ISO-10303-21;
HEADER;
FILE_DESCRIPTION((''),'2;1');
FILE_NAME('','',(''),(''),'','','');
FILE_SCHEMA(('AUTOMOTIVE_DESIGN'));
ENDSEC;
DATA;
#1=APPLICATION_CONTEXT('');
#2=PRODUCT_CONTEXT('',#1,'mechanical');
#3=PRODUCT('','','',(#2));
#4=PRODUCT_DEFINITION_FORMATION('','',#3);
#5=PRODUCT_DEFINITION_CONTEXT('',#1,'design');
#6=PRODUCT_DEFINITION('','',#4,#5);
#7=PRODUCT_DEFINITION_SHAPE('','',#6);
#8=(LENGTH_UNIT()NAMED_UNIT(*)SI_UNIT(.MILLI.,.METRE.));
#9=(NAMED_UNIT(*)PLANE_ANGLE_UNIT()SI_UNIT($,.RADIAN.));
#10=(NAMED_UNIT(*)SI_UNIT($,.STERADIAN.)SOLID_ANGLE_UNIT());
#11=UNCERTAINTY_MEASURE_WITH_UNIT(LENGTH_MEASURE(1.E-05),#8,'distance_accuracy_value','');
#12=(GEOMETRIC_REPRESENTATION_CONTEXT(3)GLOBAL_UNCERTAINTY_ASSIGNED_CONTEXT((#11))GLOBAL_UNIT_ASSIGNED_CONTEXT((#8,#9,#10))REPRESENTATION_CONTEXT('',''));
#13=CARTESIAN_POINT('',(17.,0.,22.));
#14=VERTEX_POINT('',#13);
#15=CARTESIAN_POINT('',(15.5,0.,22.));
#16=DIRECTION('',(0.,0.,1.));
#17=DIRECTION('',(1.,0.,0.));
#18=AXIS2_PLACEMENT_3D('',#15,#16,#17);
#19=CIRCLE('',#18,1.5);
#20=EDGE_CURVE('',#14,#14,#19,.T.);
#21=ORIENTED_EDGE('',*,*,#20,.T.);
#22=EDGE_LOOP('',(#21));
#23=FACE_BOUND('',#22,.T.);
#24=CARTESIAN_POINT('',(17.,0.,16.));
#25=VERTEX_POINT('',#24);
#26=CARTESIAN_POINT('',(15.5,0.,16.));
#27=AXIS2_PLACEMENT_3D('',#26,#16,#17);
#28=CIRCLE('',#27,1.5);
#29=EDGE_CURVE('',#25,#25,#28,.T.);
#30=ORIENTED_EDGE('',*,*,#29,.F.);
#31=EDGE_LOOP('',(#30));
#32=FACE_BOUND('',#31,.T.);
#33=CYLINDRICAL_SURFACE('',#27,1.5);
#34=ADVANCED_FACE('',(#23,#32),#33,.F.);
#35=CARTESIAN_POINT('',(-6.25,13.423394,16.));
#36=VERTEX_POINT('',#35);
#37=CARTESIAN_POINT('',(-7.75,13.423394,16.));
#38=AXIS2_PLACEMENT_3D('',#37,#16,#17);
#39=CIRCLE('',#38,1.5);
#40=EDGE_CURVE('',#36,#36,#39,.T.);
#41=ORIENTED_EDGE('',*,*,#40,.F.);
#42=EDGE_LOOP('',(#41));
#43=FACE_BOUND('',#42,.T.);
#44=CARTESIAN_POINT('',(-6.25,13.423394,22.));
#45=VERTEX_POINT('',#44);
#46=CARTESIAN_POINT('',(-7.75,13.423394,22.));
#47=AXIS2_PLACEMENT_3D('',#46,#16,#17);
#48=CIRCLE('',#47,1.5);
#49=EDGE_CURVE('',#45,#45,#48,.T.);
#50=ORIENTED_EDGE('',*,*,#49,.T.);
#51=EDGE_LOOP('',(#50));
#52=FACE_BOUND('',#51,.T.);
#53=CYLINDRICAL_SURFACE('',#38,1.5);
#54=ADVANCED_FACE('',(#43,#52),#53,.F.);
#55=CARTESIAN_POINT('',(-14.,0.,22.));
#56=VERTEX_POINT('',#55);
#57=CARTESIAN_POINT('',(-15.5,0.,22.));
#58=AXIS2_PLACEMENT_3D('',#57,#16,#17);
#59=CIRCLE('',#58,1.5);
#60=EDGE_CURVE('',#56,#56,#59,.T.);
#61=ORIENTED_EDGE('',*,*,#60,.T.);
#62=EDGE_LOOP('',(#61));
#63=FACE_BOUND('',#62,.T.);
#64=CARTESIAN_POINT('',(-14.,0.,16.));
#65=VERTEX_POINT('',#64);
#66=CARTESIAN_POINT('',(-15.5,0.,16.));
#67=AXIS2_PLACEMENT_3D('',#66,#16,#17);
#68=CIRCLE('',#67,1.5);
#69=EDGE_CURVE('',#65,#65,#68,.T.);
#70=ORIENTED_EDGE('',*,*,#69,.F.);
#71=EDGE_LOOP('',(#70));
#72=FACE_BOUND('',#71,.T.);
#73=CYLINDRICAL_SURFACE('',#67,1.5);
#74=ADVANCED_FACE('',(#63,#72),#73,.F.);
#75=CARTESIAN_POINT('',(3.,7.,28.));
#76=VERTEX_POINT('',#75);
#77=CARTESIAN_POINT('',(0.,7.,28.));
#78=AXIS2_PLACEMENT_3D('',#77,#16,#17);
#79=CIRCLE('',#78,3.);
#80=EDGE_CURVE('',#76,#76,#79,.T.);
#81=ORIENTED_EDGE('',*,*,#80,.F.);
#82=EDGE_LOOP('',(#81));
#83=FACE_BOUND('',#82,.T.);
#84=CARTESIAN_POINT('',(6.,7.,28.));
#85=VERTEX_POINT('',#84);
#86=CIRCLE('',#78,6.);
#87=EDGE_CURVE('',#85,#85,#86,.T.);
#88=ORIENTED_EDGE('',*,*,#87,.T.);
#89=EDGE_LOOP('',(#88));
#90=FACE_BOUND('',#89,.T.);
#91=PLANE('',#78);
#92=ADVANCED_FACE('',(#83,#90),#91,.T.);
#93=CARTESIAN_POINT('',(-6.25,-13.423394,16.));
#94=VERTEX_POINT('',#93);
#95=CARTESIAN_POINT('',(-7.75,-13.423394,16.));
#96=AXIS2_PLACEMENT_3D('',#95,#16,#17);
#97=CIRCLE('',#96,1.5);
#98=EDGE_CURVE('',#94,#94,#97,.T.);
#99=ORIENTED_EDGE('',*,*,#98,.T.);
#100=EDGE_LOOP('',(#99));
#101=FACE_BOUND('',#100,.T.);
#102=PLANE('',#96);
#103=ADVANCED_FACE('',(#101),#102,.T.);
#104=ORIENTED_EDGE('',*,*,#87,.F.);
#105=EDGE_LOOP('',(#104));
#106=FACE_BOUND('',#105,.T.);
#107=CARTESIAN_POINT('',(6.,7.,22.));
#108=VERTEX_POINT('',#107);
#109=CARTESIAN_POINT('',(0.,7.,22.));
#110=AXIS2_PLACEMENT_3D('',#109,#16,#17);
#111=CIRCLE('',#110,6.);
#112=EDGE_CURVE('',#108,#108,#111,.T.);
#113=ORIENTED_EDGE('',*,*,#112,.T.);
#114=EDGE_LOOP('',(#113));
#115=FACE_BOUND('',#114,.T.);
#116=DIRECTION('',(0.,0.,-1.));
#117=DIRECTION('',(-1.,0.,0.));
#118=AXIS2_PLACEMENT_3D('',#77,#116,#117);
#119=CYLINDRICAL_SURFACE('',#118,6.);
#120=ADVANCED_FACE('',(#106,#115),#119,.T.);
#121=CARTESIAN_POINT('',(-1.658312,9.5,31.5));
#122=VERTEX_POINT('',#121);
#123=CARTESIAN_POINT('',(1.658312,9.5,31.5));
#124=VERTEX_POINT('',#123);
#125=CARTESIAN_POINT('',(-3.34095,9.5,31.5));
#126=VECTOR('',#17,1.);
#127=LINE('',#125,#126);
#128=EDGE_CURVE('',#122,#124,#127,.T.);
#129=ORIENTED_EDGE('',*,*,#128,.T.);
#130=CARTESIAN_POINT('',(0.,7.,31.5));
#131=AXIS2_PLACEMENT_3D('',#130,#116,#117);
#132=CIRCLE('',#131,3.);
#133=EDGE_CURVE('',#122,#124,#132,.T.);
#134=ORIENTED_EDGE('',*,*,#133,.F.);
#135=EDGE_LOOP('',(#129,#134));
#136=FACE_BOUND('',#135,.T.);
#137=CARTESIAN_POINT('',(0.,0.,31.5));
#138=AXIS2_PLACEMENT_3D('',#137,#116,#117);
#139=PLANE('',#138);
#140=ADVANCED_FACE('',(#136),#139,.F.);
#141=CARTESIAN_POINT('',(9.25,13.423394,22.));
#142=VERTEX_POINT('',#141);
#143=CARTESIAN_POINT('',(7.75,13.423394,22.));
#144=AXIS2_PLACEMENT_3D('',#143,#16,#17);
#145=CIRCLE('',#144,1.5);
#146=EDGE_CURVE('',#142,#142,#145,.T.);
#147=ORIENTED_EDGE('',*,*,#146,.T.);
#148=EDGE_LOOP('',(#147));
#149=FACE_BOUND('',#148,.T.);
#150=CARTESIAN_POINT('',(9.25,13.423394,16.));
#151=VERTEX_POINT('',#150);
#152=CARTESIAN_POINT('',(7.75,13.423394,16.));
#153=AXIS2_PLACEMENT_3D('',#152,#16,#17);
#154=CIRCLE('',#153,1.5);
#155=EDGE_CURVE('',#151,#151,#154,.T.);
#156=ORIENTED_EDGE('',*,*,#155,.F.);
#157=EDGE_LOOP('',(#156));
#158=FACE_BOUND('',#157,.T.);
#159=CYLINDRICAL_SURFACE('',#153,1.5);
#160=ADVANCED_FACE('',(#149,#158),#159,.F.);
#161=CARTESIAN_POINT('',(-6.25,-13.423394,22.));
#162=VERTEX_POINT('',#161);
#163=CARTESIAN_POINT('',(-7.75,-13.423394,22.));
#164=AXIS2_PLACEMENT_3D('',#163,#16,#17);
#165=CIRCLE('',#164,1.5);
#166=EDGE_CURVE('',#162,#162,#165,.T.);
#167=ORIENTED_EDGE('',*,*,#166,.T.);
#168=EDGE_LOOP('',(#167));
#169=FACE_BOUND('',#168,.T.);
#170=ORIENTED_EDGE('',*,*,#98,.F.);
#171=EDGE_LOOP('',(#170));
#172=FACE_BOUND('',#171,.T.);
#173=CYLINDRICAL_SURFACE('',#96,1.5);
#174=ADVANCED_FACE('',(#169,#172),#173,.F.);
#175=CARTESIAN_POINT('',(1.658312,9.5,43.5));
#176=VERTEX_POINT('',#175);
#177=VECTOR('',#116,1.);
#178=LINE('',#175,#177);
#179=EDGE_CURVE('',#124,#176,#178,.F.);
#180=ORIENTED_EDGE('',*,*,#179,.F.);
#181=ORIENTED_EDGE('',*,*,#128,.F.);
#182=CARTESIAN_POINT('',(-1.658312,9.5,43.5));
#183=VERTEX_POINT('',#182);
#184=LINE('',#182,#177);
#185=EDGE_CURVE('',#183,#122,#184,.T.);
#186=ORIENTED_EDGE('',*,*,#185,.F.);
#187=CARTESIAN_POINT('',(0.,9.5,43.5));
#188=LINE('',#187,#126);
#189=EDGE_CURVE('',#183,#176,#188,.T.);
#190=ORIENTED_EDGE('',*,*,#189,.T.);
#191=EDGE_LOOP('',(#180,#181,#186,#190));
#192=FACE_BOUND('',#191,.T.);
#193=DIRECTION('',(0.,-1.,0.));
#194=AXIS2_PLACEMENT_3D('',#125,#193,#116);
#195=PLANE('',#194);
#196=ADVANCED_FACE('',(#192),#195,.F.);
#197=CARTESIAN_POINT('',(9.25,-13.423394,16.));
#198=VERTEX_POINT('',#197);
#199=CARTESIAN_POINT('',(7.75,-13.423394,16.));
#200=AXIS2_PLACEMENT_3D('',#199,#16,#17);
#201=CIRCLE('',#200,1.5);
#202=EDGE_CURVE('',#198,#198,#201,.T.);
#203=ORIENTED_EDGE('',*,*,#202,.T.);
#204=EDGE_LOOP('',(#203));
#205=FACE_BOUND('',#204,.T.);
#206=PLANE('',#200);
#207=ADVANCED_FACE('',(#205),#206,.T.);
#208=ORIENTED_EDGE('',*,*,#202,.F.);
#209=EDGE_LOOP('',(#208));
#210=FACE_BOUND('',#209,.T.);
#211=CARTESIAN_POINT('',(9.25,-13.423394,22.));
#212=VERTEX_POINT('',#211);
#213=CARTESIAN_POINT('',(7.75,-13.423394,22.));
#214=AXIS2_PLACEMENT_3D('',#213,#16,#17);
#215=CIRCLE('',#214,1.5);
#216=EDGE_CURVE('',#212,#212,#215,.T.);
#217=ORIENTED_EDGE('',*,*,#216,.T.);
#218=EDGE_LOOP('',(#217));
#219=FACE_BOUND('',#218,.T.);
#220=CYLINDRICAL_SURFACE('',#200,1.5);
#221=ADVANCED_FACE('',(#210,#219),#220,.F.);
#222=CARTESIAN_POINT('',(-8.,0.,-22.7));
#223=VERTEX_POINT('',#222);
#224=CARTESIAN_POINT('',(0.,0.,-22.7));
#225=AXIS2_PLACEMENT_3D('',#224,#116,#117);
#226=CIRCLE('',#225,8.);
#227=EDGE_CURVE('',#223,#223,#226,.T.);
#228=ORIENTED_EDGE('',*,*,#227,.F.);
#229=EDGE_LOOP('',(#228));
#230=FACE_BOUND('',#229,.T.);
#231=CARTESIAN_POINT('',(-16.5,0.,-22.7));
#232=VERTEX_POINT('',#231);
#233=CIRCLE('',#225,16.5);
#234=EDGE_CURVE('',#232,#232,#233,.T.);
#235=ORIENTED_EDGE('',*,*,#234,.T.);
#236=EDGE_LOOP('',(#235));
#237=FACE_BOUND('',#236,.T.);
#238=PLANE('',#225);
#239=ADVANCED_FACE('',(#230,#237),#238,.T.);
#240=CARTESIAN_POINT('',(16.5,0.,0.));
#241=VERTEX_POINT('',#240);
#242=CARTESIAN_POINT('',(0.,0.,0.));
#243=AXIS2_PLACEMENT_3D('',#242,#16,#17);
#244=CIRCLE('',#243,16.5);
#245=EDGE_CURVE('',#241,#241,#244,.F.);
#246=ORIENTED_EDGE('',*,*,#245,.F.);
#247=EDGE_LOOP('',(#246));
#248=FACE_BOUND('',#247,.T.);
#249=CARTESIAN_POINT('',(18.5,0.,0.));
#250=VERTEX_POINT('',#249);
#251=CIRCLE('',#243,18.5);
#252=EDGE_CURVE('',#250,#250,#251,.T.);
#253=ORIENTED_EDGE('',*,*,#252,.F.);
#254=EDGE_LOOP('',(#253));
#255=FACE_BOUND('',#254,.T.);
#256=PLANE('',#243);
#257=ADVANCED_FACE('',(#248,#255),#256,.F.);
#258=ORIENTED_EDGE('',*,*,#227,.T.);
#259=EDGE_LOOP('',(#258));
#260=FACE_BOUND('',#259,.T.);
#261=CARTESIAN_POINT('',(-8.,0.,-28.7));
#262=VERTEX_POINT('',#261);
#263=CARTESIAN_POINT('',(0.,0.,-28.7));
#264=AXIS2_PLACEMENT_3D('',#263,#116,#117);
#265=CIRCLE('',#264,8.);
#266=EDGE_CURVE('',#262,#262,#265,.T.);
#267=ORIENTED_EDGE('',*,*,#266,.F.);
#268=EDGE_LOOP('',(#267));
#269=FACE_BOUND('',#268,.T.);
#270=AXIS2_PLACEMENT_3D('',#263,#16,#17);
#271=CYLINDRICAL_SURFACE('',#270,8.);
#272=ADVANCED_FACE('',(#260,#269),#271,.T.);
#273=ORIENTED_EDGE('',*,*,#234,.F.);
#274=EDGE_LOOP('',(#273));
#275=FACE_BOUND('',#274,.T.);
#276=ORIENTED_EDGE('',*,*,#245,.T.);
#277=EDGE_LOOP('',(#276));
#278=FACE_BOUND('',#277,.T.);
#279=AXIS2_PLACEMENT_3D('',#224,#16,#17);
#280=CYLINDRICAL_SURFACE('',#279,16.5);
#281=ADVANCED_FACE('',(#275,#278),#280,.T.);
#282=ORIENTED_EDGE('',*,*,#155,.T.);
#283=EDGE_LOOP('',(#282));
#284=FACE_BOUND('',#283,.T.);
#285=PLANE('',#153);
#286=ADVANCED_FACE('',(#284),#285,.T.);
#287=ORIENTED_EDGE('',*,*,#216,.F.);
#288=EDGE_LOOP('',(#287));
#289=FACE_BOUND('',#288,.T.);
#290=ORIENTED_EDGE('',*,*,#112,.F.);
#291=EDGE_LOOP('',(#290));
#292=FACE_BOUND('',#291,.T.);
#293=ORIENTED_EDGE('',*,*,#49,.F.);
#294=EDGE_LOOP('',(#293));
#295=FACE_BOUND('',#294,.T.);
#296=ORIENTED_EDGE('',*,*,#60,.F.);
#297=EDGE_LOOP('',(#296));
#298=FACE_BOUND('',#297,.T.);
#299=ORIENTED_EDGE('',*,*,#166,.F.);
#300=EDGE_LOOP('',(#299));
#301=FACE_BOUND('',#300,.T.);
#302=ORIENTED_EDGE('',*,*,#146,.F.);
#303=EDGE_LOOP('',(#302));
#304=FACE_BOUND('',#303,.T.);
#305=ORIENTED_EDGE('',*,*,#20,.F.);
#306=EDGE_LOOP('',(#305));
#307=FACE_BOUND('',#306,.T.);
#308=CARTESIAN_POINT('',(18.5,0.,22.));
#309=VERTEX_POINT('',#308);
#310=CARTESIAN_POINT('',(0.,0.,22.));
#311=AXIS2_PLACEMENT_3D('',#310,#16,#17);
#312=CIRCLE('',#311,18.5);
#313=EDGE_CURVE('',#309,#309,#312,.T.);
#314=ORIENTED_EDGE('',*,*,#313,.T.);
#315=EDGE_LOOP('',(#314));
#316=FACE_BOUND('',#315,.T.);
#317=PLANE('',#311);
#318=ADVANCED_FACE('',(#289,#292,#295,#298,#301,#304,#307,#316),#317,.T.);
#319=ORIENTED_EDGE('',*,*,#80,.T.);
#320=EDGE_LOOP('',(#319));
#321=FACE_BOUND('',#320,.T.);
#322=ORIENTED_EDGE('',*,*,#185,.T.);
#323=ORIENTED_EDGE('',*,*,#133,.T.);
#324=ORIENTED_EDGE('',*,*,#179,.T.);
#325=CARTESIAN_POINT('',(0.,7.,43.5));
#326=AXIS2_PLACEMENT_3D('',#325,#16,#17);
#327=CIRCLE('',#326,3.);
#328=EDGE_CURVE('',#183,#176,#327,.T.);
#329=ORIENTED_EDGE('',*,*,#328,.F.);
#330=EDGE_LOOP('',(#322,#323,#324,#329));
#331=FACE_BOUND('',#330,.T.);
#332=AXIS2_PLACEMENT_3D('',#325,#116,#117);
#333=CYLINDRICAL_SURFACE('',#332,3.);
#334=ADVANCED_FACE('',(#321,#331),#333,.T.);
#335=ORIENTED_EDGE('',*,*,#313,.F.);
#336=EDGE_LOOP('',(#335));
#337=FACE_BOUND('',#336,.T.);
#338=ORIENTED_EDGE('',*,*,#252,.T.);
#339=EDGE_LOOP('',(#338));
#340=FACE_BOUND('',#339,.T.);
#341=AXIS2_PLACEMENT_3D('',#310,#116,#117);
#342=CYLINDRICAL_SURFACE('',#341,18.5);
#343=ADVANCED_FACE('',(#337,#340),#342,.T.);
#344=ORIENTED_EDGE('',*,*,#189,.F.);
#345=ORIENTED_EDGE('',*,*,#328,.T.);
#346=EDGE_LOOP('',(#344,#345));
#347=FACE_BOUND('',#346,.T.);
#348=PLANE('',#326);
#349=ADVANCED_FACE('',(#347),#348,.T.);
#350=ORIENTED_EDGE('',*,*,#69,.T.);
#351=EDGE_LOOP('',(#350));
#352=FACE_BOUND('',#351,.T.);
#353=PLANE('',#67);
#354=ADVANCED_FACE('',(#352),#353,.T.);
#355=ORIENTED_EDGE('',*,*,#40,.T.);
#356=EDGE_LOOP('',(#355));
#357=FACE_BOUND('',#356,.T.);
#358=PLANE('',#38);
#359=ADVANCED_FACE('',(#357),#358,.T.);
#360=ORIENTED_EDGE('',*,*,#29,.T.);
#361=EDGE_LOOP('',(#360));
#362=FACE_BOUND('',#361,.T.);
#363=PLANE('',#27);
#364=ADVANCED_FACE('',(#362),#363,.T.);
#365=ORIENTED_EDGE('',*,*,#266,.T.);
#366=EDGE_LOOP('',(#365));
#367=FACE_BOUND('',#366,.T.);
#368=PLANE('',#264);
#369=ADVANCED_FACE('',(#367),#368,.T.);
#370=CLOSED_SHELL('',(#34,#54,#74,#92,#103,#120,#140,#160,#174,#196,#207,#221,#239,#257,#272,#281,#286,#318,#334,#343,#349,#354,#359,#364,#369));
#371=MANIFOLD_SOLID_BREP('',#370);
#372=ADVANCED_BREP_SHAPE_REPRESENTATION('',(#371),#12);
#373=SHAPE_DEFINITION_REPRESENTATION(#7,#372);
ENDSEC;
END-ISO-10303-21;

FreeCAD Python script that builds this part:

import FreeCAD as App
import Part
import Sketcher
from FreeCAD import Vector
Q = App.Units.Quantity

doc = App.newDocument("Part")
body = doc.addObject("PartDesign::Body", "Body")

sketch1 = doc.addObject("Sketcher::SketchObject", "Sketch")
body.addObject(sketch1)
sketch1.AttachmentSupport = (doc.XY_Plane, [""])
sketch1.MapMode = "FlatFace"
sketch1.addGeometry(Part.Circle(Vector(0, 0, 0), Vector(0, 0, 1), 18.5), False)
sketch1.addConstraint([
    Sketcher.Constraint("Coincident", 0, 3, -1, 1),
    Sketcher.Constraint("Diameter", 0, Q("37 mm")),
])
pad1 = doc.addObject("PartDesign::Pad", "Pad")
body.addObject(pad1)
pad1.Profile = sketch1
pad1.Length = 22

sketch2 = doc.addObject("Sketcher::SketchObject", "Sketch001")
body.addObject(sketch2)
sketch2.AttachmentSupport = (doc.XY_Plane, [""])
sketch2.MapMode = "FlatFace"
sketch2.AttachmentOffset = App.Placement(Vector(0, 0, 22), App.Rotation())
sketch2.addGeometry(Part.Circle(Vector(0, 7, 0), Vector(0, 0, 1), 6), False)
sketch2.addConstraint([
    Sketcher.Constraint("PointOnObject", 0, 3, -2),
    Sketcher.Constraint("Diameter", 0, Q("12 mm")),
    Sketcher.Constraint("DistanceY", -1, 1, 0, 3, Q("7 mm")),
])
pad2 = doc.addObject("PartDesign::Pad", "Pad001")
body.addObject(pad2)
pad2.Profile = sketch2
pad2.Length = 6

sketch3 = doc.addObject("Sketcher::SketchObject", "Sketch002")
body.addObject(sketch3)
sketch3.AttachmentSupport = (doc.XY_Plane, [""])
sketch3.MapMode = "FlatFace"
sketch3.AttachmentOffset = App.Placement(Vector(0, 0, 28), App.Rotation())
sketch3.addGeometry(Part.Circle(Vector(0, 7, 0), Vector(0, 0, 1), 3), False)
sketch3.addConstraint([
    Sketcher.Constraint("PointOnObject", 0, 3, -2),
    Sketcher.Constraint("Diameter", 0, Q("6 mm")),
    Sketcher.Constraint("DistanceY", -1, 1, 0, 3, Q("7 mm")),
])
pad3 = doc.addObject("PartDesign::Pad", "Pad002")
body.addObject(pad3)
pad3.Profile = sketch3
pad3.Length = 15.5

sketch4 = doc.addObject("Sketcher::SketchObject", "Sketch003")
body.addObject(sketch4)
sketch4.AttachmentSupport = (doc.XY_Plane, [""])
sketch4.MapMode = "FlatFace"
sketch4.AttachmentOffset = App.Placement(Vector(0, 0, 43.5), App.Rotation())
sketch4.addGeometry([
    Part.LineSegment(Vector(-3.34095, 9.5, 0), Vector(3.684231, 9.5, 0)),
    Part.LineSegment(Vector(3.684231, 9.5, 0), Vector(0.516334, 11.681498, 0)),
    Part.LineSegment(Vector(0.516334, 11.681498, 0), Vector(-3.34095, 9.5, 0)),
], False)
sketch4.addConstraint([
    Sketcher.Constraint("Coincident", 0, 2, 1, 1),
    Sketcher.Constraint("Coincident", 1, 2, 2, 1),
    Sketcher.Constraint("Coincident", 2, 2, 0, 1),
    Sketcher.Constraint("Horizontal", 0),
    Sketcher.Constraint("DistanceY", -1, 1, 0, 2, Q("9.5 mm")),
    Sketcher.Constraint("DistanceX", 0, 1, 0, 2, Q("7.025181 mm")),
    Sketcher.Constraint("DistanceY", -1, 1, 1, 2, Q("11.681498 mm")),
    Sketcher.Constraint("Distance", 2, Q("4.431431 mm")),
    Sketcher.Constraint("DistanceX", -1, 1, 0, 2, Q("3.684231 mm")),
])
pocket1 = doc.addObject("PartDesign::Pocket", "Pocket")
body.addObject(pocket1)
pocket1.Profile = sketch4
pocket1.Length = 12

sketch5 = doc.addObject("Sketcher::SketchObject", "Sketch004")
body.addObject(sketch5)
sketch5.AttachmentSupport = (doc.XY_Plane, [""])
sketch5.MapMode = "FlatFace"
sketch5.AttachmentOffset = App.Placement(Vector(0, 0, 22), App.Rotation())
sketch5.addGeometry([
    Part.Circle(Vector(15.5, 0, 0), Vector(0, 0, 1), 1.5),
    Part.Circle(Vector(7.75, -13.423394, 0), Vector(0, 0, 1), 1.5),
    Part.Circle(Vector(-7.75, -13.423394, 0), Vector(0, 0, 1), 1.5),
    Part.Circle(Vector(-15.5, 0, 0), Vector(0, 0, 1), 1.5),
    Part.Circle(Vector(-7.75, 13.423394, 0), Vector(0, 0, 1), 1.5),
    Part.Circle(Vector(7.75, 13.423394, 0), Vector(0, 0, 1), 1.5),
], False)
sketch5.addConstraint([
    Sketcher.Constraint("Equal", 0, 1),
    Sketcher.Constraint("Equal", 1, 2),
    Sketcher.Constraint("Equal", 2, 3),
    Sketcher.Constraint("Equal", 3, 4),
    Sketcher.Constraint("Equal", 4, 5),
    Sketcher.Constraint("Symmetric", 0, 3, 3, 3, -1, 1),
    Sketcher.Constraint("Symmetric", 1, 3, 4, 3, -1, 1),
    Sketcher.Constraint("Symmetric", 2, 3, 5, 3, -1, 1),
    Sketcher.Constraint("Symmetric", 1, 3, 2, 3, -2),
    Sketcher.Constraint("PointOnObject", 0, 3, -1),
    Sketcher.Constraint("Diameter", 0, Q("3 mm")),
    Sketcher.Constraint("DistanceX", 3, 3, 0, 3, Q("31 mm")),
    Sketcher.Constraint("DistanceX", 2, 3, 1, 3, Q("15.5 mm")),
    Sketcher.Constraint("DistanceY", 1, 3, -1, 1, Q("13.423394 mm")),
])
pocket2 = doc.addObject("PartDesign::Pocket", "Pocket001")
body.addObject(pocket2)
pocket2.Profile = sketch5
pocket2.Length = 6

sketch6 = doc.addObject("Sketcher::SketchObject", "Sketch005")
body.addObject(sketch6)
sketch6.AttachmentSupport = (doc.XY_Plane, [""])
sketch6.MapMode = "FlatFace"
sketch6.addGeometry(Part.Circle(Vector(0, 0, 0), Vector(0, 0, 1), 16.5), False)
sketch6.addConstraint([
    Sketcher.Constraint("Coincident", 0, 3, -1, 1),
    Sketcher.Constraint("Diameter", 0, Q("33 mm")),
])
pad4 = doc.addObject("PartDesign::Pad", "Pad003")
body.addObject(pad4)
pad4.Profile = sketch6
pad4.Length = 22.7
pad4.Reversed = True

sketch7 = doc.addObject("Sketcher::SketchObject", "Sketch006")
body.addObject(sketch7)
sketch7.AttachmentSupport = (doc.XY_Plane, [""])
sketch7.MapMode = "FlatFace"
sketch7.AttachmentOffset = App.Placement(Vector(0, 0, -22.7), App.Rotation())
sketch7.addGeometry(Part.Circle(Vector(0, 0, 0), Vector(0, 0, 1), 8), False)
sketch7.addConstraint([
    Sketcher.Constraint("Coincident", 0, 3, -1, 1),
    Sketcher.Constraint("Diameter", 0, Q("16 mm")),
])
pad5 = doc.addObject("PartDesign::Pad", "Pad004")
body.addObject(pad5)
pad5.Profile = sketch7
pad5.Length = 6
pad5.Reversed = True

doc.recompute()
